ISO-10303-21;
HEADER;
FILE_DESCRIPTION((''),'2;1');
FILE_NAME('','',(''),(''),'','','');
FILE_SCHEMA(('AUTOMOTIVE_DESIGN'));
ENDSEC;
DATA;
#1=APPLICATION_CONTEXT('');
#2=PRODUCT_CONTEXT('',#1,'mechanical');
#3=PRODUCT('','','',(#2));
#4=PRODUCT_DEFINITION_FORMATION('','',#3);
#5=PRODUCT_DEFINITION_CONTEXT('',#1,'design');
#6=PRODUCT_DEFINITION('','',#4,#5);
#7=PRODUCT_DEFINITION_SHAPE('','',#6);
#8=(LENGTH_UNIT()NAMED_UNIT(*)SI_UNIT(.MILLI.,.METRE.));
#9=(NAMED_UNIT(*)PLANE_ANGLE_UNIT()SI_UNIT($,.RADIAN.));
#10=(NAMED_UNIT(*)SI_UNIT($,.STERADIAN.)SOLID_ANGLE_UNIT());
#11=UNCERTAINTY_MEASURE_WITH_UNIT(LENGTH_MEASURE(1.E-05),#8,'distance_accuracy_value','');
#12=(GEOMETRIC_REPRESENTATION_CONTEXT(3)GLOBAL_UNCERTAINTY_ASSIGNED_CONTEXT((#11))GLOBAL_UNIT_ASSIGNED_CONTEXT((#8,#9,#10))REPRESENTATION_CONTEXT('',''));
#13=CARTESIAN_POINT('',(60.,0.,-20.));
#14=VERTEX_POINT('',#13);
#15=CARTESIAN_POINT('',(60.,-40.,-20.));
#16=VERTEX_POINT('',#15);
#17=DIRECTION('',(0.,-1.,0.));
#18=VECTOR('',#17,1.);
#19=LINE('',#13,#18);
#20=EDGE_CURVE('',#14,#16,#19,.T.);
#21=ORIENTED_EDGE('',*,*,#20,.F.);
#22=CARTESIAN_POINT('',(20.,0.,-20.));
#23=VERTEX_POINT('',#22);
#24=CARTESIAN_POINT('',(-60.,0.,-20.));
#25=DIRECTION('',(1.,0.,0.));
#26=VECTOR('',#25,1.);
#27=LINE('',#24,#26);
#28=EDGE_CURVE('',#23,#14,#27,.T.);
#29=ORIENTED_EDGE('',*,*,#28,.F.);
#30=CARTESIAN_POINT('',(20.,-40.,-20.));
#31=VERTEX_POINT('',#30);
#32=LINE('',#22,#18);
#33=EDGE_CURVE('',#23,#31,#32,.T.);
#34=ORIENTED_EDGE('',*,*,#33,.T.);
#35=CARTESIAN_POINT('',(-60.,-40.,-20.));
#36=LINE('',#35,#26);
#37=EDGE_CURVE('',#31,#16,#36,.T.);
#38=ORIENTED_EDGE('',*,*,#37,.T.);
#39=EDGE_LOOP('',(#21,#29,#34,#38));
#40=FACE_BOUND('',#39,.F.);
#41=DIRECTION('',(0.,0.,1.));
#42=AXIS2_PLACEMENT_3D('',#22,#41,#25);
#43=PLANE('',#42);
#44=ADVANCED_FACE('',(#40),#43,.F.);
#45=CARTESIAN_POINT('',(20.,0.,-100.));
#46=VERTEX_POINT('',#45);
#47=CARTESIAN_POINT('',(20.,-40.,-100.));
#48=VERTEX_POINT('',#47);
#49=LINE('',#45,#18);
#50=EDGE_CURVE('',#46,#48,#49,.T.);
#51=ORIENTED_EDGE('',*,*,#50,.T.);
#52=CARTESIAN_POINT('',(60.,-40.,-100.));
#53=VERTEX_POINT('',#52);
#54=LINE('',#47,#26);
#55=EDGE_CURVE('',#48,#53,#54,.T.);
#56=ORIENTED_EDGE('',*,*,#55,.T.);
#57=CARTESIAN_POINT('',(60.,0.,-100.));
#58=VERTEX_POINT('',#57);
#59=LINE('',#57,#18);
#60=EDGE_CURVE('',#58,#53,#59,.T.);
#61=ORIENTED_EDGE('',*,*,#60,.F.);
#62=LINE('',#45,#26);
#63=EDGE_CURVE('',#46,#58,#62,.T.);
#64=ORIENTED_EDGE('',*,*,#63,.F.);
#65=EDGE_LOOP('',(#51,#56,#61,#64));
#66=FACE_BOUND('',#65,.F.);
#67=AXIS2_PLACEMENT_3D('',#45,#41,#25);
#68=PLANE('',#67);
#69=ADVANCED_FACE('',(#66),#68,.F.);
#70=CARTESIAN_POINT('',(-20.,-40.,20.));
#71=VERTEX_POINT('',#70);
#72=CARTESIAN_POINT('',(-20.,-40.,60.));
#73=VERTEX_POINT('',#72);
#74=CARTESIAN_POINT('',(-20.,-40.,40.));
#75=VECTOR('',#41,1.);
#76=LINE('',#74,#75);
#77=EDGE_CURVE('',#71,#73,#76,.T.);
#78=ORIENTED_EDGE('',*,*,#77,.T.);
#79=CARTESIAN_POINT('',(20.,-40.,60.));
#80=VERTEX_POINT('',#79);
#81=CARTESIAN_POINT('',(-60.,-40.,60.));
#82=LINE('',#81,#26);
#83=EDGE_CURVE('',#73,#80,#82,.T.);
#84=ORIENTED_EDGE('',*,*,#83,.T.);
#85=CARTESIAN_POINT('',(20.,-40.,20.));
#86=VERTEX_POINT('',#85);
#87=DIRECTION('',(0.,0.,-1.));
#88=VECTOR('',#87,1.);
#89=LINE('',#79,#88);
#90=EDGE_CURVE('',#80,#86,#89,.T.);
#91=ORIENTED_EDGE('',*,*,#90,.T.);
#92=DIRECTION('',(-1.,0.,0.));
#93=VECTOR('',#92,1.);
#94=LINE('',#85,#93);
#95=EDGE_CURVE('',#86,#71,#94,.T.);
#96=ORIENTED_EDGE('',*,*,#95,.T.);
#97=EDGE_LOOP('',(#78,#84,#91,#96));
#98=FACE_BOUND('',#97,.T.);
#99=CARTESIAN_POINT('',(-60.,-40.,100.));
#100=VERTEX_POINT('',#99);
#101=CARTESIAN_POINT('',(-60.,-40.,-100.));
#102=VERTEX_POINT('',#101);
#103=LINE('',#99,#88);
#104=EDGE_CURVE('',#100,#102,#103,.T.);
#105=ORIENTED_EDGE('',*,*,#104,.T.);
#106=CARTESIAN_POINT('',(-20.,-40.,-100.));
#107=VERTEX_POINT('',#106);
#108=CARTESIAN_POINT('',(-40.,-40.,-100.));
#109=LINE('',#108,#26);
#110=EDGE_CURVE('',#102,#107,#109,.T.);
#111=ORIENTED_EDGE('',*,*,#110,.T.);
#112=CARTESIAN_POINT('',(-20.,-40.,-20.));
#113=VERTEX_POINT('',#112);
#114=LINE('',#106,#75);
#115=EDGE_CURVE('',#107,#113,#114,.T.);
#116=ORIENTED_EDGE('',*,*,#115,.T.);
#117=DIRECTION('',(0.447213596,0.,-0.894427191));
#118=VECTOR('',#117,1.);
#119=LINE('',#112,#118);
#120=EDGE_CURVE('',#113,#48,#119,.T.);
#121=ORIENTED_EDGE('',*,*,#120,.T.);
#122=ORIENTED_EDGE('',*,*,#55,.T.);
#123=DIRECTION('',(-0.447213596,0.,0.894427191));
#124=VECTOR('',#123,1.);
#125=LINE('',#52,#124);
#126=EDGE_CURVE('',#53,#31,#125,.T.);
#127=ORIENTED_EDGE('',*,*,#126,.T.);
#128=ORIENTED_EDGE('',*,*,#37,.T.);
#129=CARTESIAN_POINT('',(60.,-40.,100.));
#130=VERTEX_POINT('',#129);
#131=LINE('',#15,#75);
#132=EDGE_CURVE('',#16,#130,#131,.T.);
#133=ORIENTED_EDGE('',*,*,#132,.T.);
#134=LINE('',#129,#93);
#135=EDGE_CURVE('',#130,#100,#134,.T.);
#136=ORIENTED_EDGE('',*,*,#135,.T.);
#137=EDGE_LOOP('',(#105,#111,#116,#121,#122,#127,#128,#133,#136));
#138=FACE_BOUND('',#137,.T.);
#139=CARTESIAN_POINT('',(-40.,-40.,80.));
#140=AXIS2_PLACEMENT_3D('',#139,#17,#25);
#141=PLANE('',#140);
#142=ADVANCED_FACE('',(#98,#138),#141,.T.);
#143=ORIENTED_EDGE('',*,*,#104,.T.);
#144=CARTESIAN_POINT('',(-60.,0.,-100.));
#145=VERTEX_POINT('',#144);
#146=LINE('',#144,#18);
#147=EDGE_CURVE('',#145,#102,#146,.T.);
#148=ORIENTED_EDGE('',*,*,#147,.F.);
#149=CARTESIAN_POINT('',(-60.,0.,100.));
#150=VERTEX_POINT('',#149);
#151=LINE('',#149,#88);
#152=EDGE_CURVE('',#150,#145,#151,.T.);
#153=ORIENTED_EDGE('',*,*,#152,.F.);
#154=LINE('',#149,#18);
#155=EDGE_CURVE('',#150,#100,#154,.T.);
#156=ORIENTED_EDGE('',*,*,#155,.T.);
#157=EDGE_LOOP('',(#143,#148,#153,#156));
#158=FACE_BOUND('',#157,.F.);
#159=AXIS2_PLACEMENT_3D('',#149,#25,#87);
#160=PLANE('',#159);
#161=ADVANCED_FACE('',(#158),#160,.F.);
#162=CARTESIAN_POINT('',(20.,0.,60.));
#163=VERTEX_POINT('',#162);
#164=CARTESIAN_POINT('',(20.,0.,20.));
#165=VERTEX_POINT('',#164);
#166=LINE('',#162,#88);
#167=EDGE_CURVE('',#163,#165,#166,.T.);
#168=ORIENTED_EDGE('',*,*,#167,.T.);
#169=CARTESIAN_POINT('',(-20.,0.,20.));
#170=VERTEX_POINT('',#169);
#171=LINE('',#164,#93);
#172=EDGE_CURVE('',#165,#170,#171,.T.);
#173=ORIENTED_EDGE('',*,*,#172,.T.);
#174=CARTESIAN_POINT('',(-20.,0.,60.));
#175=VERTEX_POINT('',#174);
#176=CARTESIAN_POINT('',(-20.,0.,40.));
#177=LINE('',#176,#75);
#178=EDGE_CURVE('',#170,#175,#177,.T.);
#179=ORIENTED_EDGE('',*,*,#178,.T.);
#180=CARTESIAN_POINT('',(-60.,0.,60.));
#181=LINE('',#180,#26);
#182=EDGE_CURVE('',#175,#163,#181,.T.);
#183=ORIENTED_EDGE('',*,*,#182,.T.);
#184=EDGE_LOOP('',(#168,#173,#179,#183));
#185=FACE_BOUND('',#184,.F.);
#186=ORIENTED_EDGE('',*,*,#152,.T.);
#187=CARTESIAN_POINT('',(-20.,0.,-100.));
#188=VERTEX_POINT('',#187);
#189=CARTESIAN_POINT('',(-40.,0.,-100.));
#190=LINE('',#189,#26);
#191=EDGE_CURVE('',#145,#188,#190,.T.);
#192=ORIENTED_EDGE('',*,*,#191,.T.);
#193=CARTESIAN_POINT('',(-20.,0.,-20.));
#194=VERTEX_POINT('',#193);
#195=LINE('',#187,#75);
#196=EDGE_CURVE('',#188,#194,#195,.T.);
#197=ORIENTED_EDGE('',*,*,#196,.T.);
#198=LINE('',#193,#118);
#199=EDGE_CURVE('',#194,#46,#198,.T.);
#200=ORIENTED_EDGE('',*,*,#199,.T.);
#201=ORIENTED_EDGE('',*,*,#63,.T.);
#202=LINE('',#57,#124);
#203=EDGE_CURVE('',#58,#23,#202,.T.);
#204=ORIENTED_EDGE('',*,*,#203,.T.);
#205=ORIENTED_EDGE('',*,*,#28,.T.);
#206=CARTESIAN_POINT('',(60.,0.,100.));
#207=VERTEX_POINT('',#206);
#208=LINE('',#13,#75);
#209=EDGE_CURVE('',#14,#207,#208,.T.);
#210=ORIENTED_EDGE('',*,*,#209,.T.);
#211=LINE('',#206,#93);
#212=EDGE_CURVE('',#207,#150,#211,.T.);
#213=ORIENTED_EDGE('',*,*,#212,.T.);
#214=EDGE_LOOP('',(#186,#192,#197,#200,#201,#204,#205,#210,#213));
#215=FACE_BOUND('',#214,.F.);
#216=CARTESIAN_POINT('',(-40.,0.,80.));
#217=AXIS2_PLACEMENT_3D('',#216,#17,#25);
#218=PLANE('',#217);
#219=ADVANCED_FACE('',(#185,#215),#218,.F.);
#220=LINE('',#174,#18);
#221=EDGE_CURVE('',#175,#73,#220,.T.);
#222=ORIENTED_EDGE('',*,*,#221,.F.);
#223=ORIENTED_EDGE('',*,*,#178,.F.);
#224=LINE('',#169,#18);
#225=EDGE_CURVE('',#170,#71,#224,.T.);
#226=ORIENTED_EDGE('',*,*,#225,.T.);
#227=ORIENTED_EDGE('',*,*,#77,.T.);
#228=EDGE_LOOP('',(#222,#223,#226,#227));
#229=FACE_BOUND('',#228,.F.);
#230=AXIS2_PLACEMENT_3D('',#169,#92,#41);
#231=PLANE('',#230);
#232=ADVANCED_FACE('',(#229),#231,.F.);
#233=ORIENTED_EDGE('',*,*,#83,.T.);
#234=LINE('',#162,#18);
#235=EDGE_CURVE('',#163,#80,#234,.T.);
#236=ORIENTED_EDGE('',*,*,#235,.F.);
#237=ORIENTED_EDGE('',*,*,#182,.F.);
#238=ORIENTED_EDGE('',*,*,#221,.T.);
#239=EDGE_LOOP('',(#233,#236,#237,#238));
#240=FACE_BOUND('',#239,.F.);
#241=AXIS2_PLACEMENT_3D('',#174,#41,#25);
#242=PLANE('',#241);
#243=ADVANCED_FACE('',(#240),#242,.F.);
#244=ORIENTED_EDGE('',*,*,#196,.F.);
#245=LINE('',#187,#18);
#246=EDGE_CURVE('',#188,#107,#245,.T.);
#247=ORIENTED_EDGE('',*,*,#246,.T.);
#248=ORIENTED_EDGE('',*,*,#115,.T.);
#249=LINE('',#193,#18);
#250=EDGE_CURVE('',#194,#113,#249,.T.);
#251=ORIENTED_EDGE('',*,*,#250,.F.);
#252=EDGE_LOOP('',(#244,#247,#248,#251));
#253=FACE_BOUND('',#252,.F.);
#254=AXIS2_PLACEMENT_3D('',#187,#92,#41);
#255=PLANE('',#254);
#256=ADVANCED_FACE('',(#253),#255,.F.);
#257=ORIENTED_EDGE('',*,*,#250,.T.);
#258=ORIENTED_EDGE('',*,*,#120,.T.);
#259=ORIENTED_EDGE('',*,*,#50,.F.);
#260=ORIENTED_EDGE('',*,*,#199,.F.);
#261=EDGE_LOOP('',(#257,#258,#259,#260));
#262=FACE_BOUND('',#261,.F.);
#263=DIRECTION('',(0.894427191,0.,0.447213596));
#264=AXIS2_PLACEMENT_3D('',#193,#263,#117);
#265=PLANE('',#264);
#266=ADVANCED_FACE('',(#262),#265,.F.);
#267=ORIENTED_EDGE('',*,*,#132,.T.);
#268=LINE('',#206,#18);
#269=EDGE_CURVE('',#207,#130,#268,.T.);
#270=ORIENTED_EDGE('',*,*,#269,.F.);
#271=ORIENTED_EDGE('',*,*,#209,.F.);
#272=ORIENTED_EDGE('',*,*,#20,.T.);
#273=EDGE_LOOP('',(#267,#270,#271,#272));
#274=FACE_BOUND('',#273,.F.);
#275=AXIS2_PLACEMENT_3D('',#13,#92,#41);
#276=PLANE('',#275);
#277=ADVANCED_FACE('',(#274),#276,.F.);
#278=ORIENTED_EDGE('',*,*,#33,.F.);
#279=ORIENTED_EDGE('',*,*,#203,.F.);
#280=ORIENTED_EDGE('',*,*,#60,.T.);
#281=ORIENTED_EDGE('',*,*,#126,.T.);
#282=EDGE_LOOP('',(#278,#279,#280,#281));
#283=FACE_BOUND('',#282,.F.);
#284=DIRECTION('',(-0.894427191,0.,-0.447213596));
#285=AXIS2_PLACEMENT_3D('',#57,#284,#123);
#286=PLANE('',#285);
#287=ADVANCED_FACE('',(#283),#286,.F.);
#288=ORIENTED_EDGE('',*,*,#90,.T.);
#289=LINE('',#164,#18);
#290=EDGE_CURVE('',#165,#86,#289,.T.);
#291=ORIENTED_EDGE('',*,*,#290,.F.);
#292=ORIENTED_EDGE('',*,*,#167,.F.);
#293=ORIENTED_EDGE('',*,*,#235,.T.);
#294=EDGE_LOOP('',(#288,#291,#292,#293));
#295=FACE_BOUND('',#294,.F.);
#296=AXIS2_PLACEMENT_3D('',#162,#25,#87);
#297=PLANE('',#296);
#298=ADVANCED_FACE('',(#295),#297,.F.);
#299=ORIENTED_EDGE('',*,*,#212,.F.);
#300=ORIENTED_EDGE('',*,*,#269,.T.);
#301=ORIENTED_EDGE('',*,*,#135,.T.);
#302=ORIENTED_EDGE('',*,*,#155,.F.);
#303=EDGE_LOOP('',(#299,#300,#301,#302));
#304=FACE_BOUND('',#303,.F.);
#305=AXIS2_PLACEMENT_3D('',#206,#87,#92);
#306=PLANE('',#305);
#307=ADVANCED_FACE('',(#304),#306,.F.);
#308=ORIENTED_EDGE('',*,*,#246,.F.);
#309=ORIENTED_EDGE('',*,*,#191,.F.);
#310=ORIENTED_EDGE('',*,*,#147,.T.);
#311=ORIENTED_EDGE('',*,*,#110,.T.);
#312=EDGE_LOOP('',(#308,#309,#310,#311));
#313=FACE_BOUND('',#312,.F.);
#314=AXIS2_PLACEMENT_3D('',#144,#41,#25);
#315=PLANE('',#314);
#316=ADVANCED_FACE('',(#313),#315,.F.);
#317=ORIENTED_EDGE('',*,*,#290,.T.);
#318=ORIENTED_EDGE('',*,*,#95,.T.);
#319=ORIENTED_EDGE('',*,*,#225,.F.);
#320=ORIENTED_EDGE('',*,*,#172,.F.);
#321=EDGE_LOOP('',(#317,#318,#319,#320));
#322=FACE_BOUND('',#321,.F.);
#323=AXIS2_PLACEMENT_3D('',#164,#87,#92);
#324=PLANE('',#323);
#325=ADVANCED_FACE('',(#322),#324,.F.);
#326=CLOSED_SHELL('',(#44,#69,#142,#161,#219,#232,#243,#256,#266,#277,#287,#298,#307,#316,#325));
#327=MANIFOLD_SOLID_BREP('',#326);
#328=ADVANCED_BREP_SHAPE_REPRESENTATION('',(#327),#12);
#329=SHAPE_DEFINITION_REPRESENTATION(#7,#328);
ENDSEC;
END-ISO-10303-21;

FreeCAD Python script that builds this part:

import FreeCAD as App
import Part
import Sketcher
from FreeCAD import Vector
Q = App.Units.Quantity


def add_polygon(sketch, points):
    """Adds a closed chain of lines whose ends are joined by coincident constraints."""
    first, n = sketch.GeometryCount, len(points)
    for a, b in zip(points, points[1:] + points[:1]):
        sketch.addGeometry(Part.LineSegment(App.Vector(*a, 0), App.Vector(*b, 0)), False)
    for i in range(n):
        sketch.addConstraint(Sketcher.Constraint("Coincident", first + i, 2, first + (i + 1) % n, 1))

doc = App.newDocument("Part")
body = doc.addObject("PartDesign::Body", "Body")

# Sketch on XZ plane
sketch1 = doc.addObject("Sketcher::SketchObject", "Sketch")
body.addObject(sketch1)
sketch1.AttachmentSupport = (doc.XZ_Plane, [""])
sketch1.MapMode = "FlatFace"
add_polygon(sketch1, [(-60, 100), (-60, -100), (-20, -100), (-20, -20), (20, -100), (60, -100), (20, -20), (60, -20), (60, 100)])  # lines 0-8
add_polygon(sketch1, [(-20, 60), (20, 60), (20, 20), (-20, 20)])  # lines 9-12
sketch1.addConstraint(Sketcher.Constraint("Vertical", 0))
sketch1.addConstraint(Sketcher.Constraint("Horizontal", 1))
sketch1.addConstraint(Sketcher.Constraint("Vertical", 2))
sketch1.addConstraint(Sketcher.Constraint("Horizontal", 4))
sketch1.addConstraint(Sketcher.Constraint("Horizontal", 6))
sketch1.addConstraint(Sketcher.Constraint("Vertical", 7))
sketch1.addConstraint(Sketcher.Constraint("Horizontal", 8))
sketch1.addConstraint(Sketcher.Constraint("Horizontal", 9))
sketch1.addConstraint(Sketcher.Constraint("Vertical", 10))
sketch1.addConstraint(Sketcher.Constraint("Horizontal", 11))
sketch1.addConstraint(Sketcher.Constraint("Vertical", 12))
sketch1.addConstraint(Sketcher.Constraint("Symmetric", 0, 2, 7, 2, -1, 1))
sketch1.addConstraint(Sketcher.Constraint("Symmetric", 4, 2, 8, 2, -1, 1))
sketch1.addConstraint(Sketcher.Constraint("Symmetric", 2, 2, 10, 2, -1, 1))
sketch1.addConstraint(Sketcher.Constraint("Symmetric", 5, 2, 11, 2, -1, 1))
sketch1.addConstraint(Sketcher.Constraint("Parallel", 3, 5))
sketch1.addConstraint(Sketcher.Constraint("Vertical", 3, 2, 5, 2))
sketch1.addConstraint(Sketcher.Constraint("Vertical", 5, 2, 9, 2))
sketch1.addConstraint(Sketcher.Constraint("Equal", 8, 7))
sketch1.addConstraint(Sketcher.Constraint("Equal", 11, 10))
sketch1.addConstraint(Sketcher.Constraint("DistanceX", 1, 1, 1, 2, Q("40 mm")))
sketch1.addConstraint(Sketcher.Constraint("DistanceY", 0, 2, 0, 1, Q("200 mm")))
pad1 = doc.addObject("PartDesign::Pad", "Pad")
body.addObject(pad1)
pad1.Profile = sketch1
pad1.Length = 40

doc.recompute()
